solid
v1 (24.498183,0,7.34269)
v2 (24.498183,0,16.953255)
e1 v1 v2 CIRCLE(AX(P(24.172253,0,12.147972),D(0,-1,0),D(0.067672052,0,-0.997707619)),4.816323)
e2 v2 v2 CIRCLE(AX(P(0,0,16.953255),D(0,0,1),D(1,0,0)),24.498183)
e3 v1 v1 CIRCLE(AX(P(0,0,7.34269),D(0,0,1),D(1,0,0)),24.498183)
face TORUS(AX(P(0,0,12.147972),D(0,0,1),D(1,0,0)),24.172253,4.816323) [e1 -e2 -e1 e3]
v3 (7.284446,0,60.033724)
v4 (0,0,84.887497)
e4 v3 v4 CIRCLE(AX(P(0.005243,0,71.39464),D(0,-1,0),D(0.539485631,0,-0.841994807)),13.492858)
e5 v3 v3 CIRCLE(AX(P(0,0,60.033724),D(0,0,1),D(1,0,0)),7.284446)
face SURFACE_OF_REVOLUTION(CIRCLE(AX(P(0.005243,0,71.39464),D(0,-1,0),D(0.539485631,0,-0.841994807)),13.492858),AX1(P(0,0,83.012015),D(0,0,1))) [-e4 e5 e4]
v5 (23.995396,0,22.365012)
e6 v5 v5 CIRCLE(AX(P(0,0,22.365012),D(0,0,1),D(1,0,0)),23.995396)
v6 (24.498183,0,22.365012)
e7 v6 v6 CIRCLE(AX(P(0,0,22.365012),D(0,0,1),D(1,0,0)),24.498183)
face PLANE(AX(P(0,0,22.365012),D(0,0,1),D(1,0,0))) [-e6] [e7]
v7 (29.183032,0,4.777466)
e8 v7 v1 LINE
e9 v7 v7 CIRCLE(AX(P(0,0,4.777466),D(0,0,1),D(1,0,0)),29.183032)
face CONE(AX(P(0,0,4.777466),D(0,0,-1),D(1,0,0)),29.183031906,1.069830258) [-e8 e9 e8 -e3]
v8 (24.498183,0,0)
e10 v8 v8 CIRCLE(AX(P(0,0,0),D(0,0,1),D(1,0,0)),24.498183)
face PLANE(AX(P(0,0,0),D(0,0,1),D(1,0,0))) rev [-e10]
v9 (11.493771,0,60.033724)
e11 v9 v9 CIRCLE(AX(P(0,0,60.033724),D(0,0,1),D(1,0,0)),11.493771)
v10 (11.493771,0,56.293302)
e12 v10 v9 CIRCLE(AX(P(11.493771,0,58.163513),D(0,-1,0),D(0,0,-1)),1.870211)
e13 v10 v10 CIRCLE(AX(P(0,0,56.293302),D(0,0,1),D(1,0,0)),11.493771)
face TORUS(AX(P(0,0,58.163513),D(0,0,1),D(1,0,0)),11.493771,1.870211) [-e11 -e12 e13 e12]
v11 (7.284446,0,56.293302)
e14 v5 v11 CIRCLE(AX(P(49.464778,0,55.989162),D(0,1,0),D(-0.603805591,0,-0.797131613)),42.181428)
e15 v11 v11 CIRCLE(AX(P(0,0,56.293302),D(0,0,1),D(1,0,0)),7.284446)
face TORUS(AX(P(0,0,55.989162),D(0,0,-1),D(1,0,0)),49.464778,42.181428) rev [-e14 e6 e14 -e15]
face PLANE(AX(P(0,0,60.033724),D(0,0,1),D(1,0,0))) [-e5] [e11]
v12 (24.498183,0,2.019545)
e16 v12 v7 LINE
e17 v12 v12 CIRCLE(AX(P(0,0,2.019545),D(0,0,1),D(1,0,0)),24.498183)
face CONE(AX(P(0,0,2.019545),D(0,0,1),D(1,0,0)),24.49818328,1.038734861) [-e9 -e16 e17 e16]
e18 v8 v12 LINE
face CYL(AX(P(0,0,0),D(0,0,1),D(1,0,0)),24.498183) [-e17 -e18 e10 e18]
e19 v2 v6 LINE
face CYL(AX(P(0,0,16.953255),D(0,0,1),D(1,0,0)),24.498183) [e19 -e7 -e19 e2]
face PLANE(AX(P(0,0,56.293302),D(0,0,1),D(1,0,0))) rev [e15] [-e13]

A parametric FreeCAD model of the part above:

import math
import FreeCAD as App
import Part
import Sketcher

V = App.Vector

doc = App.newDocument("Part")
body = doc.addObject("PartDesign::Body", "Body")

# Sketch on XZ plane
sketch1 = doc.addObject("Sketcher::SketchObject", "Sketch")
body.addObject(sketch1)
sketch1.AttachmentSupport = (doc.XZ_Plane, [""])
sketch1.MapMode = "FlatFace"
sketch1.addGeometry([
    Part.LineSegment(V(0, 0, 0), V(24.5, 0, 0)),  # 0
    Part.LineSegment(V(24.5, 0, 0), V(24.5, 2, 0)),  # 1
    Part.LineSegment(V(24.5, 2, 0), V(29.2, 4.8, 0)),  # 2
    Part.LineSegment(V(29.2, 4.8, 0), V(24.5, 7.3, 0)),  # 3
    Part.ArcOfCircle(Part.Circle(V(24.2, 12.1, 0), V(0, 0, 1), 4.8), math.radians(-86), math.radians(86)),  # 4
    Part.LineSegment(V(24.5, 17, 0), V(24.5, 22.4, 0)),  # 5
    Part.LineSegment(V(24.5, 22.4, 0), V(24, 22.4, 0)),  # 6
    Part.ArcOfCircle(Part.Circle(V(49.5, 56, 0), V(0, 0, 1), 42.2), math.radians(180), math.radians(233)),  # 7
    Part.LineSegment(V(7.3, 56.3, 0), V(11.5, 56.3, 0)),  # 8
    Part.ArcOfCircle(Part.Circle(V(11.5, 58.2, 0), V(0, 0, 1), 1.9), math.radians(-90), math.radians(90)),  # 9
    Part.LineSegment(V(11.5, 60, 0), V(7.3, 60, 0)),  # 10
    Part.ArcOfCircle(Part.Circle(V(0, 71.4, 0), V(0, 0, 1), 13.5), math.radians(-57), math.radians(90)),  # 11
    Part.LineSegment(V(0, 84.9, 0), V(0, 0, 0)),  # 12
], False)
sketch1.addConstraint([
    Sketcher.Constraint("Coincident", 0, 2, 1, 1),
    Sketcher.Constraint("Coincident", 1, 2, 2, 1),
    Sketcher.Constraint("Coincident", 2, 2, 3, 1),
    Sketcher.Constraint("Coincident", 3, 2, 4, 1),
    Sketcher.Constraint("Coincident", 4, 2, 5, 1),
    Sketcher.Constraint("Coincident", 5, 2, 6, 1),
    Sketcher.Constraint("Coincident", 6, 2, 7, 2),
    Sketcher.Constraint("Coincident", 7, 1, 8, 1),
    Sketcher.Constraint("Tangent", 8, 2, 9, 1),
    Sketcher.Constraint("Tangent", 9, 2, 10, 1),
    Sketcher.Constraint("Coincident", 10, 2, 11, 1),
    Sketcher.Constraint("Coincident", 11, 2, 12, 1),
    Sketcher.Constraint("Coincident", 12, 2, 0, 1),
    Sketcher.Constraint("Horizontal", 0),
    Sketcher.Constraint("Vertical", 1),
    Sketcher.Constraint("Vertical", 5),
    Sketcher.Constraint("Horizontal", 6),
    Sketcher.Constraint("Horizontal", 8),
    Sketcher.Constraint("Horizontal", 10),
    Sketcher.Constraint("Vertical", 12),
    Sketcher.Constraint("Coincident", 12, 2, -1, 1),
    Sketcher.Constraint("Vertical", 1, 2, 3, 2),
    Sketcher.Constraint("Vertical", 3, 2, 4, 2),
    Sketcher.Constraint("Vertical", 7, 1, 10, 2),
    Sketcher.Constraint("Radius", 7, 42.181428),
    Sketcher.Constraint("Radius", 9, 1.870211),
    Sketcher.Constraint("Radius", 4, 4.816323),
    Sketcher.Constraint("Radius", 11, 13.492858),
    Sketcher.Constraint("DistanceY", -1, 1, 7, 1, 56.293302),
    Sketcher.Constraint("DistanceX", 0, 1, 0, 2, 24.498183),
    Sketcher.Constraint("DistanceX", 6, 2, 6, 1, 0.502787),
    Sketcher.Constraint("DistanceX", 8, 1, 8, 2, 4.209325),
    Sketcher.Constraint("DistanceY", 1, 1, 1, 2, 2.019545),
    Sketcher.Constraint("DistanceY", 5, 1, 5, 2, 5.411757),
    Sketcher.Constraint("DistanceY", 12, 2, 12, 1, 84.887497),
    Sketcher.Constraint("DistanceX", -1, 1, 7, 3, 49.464778),
    Sketcher.Constraint("DistanceY", -1, 1, 7, 3, 55.989162),
    Sketcher.Constraint("DistanceX", -1, 1, 2, 2, 29.183032),
    Sketcher.Constraint("DistanceY", -1, 1, 3, 2, 7.34269),
    Sketcher.Constraint("DistanceY", 1, 2, 2, 2, 2.757921),
])
revolution = doc.addObject("PartDesign::Revolution", "Revolution")
body.addObject(revolution)
revolution.Profile = sketch1
revolution.ReferenceAxis = (sketch1, ["V_Axis"])
revolution.Angle = 360

doc.recompute()
